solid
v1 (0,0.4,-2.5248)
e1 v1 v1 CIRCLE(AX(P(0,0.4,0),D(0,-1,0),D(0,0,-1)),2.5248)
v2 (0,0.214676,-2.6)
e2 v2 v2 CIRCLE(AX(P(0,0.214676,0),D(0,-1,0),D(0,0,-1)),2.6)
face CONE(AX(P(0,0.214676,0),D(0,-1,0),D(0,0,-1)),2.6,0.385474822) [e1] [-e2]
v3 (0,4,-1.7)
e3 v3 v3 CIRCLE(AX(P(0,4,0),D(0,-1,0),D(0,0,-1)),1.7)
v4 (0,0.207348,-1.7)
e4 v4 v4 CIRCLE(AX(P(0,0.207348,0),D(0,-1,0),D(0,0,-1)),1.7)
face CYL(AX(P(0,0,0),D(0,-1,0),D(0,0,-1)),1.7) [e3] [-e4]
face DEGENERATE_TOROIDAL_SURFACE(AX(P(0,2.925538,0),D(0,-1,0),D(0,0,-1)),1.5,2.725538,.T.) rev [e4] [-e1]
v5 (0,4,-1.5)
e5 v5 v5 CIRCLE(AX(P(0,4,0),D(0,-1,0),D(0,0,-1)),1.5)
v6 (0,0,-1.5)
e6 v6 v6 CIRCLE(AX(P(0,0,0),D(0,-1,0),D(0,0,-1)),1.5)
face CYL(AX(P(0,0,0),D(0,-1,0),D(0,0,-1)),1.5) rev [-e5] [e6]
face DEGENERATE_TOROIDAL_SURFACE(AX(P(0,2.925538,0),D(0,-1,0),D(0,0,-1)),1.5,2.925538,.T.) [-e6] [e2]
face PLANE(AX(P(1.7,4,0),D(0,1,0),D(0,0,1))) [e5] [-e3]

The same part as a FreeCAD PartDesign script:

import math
import FreeCAD as App
import Part
import Sketcher
from FreeCAD import Vector
Q = App.Units.Quantity

doc = App.newDocument("Part")
params = doc.addObject("Spreadsheet::Sheet", "Params")
for row, (alias, value) in enumerate([
    ("sketch1_height", "4 mm"),
    ("sketch1_width", "0.2 mm"),
    ("sketch1_length", "0.2 mm"),
    ("revolution_angle", "360 deg"),
], start=1):
    params.set(f"A{row}", alias)
    params.set(f"B{row}", "=" + value)
    params.setAlias(f"B{row}", alias)

body = doc.addObject("PartDesign::Body", "Body")

sketch1 = doc.addObject("Sketcher::SketchObject", "Sketch")
body.addObject(sketch1)
sketch1.AttachmentSupport = (doc.XY_Plane, [""])
sketch1.MapMode = "FlatFace"
sketch1.addGeometry([
    Part.LineSegment(Vector(1.7, 4, 0), Vector(1.5, 4, 0)),
    Part.LineSegment(Vector(1.5, 4, 0), Vector(1.5, 0, 0)),
    Part.ArcOfCircle(Part.Circle(Vector(1.5, 2.93, 0), Vector(0, 0, 1), 2.93), math.radians(-90), math.radians(-68)),
    Part.LineSegment(Vector(2.6, 0.21, 0), Vector(2.52, 0.4, 0)),
    Part.ArcOfCircle(Part.Circle(Vector(1.5, 2.93, 0), Vector(0, 0, 1), 2.73), math.radians(-85.79), math.radians(-67.91)),
    Part.LineSegment(Vector(1.7, 0.21, 0), Vector(1.7, 4, 0)),
], False)
sketch1.addConstraint([
    Sketcher.Constraint("Coincident", 0, 2, 1, 1),
    Sketcher.Constraint("Coincident", 1, 2, 2, 1),
    Sketcher.Constraint("Coincident", 2, 2, 3, 1),
    Sketcher.Constraint("Coincident", 3, 2, 4, 2),
    Sketcher.Constraint("Coincident", 4, 1, 5, 1),
    Sketcher.Constraint("Coincident", 5, 2, 0, 1),
    Sketcher.Constraint("Horizontal", 0),
    Sketcher.Constraint("Vertical", 1),
    Sketcher.Constraint("Vertical", 5),
    Sketcher.Constraint("Coincident", 4, 3, 2, 3),
    Sketcher.Constraint("PointOnObject", 1, 2, -1),
    Sketcher.Constraint("Vertical", 4, 3, 0, 2),
    Sketcher.Constraint("DistanceY", 1, 2, 1, 1, Q("4 mm")),
    Sketcher.Constraint("DistanceX", 0, 2, 0, 1, Q("0.2 mm")),
    Sketcher.Constraint("Distance", 3, Q("0.2 mm")),
    Sketcher.Constraint("DistanceX", -1, 1, 2, 3, Q("1.5 mm")),
    Sketcher.Constraint("DistanceX", -1, 1, 2, 2, Q("2.6 mm")),
    Sketcher.Constraint("DistanceY", -1, 1, 3, 2, Q("0.4 mm")),
    Sketcher.Constraint("Radius", 2, Q("2.925538 mm")),
])
sketch1.setExpression("Constraints[12]", "Params.sketch1_height")
sketch1.setExpression("Constraints[13]", "Params.sketch1_width")
sketch1.setExpression("Constraints[14]", "Params.sketch1_length")
revolution = doc.addObject("PartDesign::Revolution", "Revolution")
body.addObject(revolution)
revolution.Profile = sketch1
revolution.ReferenceAxis = (sketch1, ["V_Axis"])
revolution.setExpression("Angle", "Params.revolution_angle")

doc.recompute()
